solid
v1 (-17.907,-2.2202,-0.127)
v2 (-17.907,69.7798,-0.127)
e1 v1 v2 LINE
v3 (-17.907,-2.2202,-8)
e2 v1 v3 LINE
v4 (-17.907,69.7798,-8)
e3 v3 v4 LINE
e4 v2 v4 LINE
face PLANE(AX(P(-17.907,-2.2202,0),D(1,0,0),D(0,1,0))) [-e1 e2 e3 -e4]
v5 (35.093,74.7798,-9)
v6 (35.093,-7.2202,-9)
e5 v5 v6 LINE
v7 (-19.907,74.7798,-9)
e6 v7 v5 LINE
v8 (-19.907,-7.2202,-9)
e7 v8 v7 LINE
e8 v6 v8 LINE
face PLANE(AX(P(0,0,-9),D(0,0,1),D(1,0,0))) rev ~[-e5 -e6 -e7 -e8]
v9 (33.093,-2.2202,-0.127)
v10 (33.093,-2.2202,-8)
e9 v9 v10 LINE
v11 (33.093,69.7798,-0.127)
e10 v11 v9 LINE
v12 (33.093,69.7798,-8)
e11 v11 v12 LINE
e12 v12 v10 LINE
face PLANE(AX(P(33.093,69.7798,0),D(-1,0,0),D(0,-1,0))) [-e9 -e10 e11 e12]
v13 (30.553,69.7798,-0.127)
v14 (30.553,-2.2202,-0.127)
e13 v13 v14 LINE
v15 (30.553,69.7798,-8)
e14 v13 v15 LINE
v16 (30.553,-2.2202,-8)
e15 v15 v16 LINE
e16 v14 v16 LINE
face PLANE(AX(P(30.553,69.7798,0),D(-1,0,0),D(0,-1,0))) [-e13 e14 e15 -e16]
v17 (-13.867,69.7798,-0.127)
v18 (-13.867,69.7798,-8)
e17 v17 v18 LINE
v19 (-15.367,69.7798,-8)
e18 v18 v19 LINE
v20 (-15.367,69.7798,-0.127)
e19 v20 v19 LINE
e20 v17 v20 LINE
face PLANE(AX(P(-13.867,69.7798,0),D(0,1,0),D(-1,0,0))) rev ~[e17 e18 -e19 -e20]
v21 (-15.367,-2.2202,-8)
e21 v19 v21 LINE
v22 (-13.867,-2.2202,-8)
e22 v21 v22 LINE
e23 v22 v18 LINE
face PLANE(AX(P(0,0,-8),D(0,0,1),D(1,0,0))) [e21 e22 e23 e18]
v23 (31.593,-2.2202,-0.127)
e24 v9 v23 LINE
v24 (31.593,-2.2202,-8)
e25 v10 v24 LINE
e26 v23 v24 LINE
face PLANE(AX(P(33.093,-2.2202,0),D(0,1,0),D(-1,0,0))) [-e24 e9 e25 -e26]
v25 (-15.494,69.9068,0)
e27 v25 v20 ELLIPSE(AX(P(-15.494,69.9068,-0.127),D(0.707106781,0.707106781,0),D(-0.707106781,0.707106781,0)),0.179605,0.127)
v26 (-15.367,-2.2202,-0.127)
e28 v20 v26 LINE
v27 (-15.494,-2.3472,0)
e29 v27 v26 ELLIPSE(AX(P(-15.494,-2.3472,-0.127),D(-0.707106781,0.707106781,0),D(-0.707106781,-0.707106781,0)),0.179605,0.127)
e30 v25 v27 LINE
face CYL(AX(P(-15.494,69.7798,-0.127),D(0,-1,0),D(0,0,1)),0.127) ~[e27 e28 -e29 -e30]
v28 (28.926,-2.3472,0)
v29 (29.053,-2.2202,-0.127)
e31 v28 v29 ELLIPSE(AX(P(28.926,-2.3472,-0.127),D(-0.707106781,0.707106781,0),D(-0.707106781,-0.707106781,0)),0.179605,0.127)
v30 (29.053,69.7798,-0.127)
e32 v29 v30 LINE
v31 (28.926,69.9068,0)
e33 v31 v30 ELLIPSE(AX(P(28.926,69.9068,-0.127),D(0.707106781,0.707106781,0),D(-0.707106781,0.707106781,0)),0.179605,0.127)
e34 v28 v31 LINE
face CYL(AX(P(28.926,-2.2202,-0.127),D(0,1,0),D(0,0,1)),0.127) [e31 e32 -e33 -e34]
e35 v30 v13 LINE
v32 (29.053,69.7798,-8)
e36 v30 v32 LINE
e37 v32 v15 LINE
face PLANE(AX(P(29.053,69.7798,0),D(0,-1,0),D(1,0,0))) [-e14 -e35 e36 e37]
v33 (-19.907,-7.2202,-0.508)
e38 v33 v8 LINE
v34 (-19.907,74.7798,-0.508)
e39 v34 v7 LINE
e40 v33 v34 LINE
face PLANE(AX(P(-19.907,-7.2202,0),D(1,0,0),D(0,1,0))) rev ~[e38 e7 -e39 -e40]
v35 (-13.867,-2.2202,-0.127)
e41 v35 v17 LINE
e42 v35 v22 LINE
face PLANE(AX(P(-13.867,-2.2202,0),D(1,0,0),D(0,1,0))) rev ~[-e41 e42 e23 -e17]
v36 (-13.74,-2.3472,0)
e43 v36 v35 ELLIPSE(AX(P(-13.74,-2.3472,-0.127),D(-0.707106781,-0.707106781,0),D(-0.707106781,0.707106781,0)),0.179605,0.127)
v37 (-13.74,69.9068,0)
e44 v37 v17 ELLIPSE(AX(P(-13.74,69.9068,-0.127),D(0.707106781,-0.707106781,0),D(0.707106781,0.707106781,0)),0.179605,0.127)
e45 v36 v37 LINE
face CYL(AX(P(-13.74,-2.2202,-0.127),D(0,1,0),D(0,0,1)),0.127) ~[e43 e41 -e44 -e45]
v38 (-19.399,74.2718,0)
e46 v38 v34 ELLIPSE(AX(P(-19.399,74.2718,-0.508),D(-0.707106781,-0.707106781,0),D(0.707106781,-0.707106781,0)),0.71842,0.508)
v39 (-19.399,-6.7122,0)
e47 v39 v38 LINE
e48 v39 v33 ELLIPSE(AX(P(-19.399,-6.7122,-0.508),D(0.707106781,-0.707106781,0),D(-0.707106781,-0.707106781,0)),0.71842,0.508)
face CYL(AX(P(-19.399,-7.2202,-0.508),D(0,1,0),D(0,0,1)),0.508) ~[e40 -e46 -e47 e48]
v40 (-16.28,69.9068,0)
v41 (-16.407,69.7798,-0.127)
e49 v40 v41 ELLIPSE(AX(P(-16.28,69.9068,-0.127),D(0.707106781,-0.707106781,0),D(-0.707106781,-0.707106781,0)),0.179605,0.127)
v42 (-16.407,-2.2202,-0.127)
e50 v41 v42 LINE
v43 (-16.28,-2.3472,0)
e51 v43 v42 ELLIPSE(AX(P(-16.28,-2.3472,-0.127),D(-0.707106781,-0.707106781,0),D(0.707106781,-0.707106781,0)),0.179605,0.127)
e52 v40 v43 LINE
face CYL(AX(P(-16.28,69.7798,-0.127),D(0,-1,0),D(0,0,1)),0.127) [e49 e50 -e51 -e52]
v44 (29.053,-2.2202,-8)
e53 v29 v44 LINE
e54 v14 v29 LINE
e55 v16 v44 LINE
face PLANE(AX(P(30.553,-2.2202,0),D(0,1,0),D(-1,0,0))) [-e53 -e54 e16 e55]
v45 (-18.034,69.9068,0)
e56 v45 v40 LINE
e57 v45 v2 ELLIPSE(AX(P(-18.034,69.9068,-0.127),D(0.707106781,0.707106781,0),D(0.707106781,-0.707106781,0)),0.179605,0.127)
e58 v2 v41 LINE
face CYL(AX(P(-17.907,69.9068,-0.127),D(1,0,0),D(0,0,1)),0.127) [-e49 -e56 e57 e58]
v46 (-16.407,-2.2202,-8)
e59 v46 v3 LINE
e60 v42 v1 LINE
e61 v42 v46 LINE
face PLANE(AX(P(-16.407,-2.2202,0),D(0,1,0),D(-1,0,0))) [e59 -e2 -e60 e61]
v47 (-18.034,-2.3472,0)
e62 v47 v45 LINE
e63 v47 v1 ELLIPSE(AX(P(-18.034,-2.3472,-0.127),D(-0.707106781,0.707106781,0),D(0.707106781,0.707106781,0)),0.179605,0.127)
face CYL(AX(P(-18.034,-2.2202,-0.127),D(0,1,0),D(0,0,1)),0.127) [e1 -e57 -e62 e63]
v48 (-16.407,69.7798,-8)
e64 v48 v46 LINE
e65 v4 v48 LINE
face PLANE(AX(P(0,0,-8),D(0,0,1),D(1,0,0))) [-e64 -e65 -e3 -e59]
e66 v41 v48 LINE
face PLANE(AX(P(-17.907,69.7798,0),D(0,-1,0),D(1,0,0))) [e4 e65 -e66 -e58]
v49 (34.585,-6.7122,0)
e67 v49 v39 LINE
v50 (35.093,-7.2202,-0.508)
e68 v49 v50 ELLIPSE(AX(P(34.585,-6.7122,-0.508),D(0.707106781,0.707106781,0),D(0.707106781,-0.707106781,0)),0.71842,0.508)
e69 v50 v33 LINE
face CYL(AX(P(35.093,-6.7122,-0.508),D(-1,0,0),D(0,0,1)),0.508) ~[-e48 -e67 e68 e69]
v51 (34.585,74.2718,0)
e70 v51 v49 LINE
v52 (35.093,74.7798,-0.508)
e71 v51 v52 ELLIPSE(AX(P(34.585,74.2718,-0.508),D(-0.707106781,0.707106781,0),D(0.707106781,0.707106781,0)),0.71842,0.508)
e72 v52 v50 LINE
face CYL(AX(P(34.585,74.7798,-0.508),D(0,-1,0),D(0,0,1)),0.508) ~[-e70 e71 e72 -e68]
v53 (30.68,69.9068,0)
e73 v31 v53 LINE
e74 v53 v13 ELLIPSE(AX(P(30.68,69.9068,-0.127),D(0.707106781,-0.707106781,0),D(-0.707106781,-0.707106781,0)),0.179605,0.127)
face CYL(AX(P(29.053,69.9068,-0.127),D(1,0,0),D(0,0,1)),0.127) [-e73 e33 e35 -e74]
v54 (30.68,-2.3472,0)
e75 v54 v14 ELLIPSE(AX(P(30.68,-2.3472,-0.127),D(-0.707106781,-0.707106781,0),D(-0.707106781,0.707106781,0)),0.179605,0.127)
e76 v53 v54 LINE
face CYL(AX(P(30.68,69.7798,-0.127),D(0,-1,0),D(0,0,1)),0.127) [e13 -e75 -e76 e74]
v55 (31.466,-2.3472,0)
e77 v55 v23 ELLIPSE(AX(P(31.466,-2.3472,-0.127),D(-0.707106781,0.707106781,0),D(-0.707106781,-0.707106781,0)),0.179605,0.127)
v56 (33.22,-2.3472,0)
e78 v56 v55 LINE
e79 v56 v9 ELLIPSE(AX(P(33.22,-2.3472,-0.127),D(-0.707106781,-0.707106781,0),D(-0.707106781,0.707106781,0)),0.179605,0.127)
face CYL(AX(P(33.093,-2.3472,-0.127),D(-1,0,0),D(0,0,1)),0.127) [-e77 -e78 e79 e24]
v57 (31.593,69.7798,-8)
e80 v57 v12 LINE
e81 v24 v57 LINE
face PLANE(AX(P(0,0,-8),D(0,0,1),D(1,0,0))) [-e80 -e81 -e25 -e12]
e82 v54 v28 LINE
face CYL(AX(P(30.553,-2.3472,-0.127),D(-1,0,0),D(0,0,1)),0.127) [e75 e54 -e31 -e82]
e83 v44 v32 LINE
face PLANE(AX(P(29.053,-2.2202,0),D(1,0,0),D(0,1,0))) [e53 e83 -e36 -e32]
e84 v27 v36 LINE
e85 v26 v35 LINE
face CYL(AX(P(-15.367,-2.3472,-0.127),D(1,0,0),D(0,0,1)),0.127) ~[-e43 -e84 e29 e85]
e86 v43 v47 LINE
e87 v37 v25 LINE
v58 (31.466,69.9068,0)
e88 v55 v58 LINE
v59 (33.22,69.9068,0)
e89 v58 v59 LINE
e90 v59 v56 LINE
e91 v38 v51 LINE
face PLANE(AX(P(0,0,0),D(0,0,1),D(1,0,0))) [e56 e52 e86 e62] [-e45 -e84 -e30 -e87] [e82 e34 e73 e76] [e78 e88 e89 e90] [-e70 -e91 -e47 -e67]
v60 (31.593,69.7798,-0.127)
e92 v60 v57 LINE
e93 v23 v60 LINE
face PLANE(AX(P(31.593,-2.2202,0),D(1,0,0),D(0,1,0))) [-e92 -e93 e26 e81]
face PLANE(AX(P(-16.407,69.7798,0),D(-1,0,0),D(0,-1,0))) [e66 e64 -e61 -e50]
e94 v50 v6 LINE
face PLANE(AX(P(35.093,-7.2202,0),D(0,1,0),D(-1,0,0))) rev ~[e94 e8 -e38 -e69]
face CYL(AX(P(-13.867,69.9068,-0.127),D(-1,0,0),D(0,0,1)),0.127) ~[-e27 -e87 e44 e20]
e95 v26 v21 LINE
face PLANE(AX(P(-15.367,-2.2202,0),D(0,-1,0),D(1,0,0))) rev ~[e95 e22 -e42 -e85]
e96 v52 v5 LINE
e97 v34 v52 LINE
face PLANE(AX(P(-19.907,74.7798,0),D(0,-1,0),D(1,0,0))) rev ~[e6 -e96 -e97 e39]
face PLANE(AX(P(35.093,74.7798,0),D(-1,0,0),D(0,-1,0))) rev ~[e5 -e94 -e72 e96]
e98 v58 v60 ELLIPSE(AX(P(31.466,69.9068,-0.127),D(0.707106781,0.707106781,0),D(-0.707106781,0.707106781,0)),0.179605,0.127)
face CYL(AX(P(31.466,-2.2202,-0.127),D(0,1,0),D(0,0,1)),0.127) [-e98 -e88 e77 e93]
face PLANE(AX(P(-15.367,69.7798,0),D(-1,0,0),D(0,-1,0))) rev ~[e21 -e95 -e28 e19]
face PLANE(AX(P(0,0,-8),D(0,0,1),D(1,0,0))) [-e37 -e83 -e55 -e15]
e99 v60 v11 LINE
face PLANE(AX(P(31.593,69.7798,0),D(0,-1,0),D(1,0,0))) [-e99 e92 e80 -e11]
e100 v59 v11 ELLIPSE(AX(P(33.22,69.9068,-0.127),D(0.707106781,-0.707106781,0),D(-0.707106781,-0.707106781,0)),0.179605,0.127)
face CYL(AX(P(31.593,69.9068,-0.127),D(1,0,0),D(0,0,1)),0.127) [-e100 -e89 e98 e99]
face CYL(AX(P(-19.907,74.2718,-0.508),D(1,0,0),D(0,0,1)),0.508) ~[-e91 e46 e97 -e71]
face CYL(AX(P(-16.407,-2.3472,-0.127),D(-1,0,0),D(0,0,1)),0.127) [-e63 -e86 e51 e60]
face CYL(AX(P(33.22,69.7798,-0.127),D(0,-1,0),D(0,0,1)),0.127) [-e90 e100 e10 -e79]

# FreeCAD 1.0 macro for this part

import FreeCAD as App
import Part
import Sketcher
from FreeCAD import Vector


def edges_at(feature, points):
    """Names of the edges that pass closest to the given points."""
    edges = feature.Shape.Edges
    near = lambda p: min(range(len(edges)), key=lambda i: edges[i].distToShape(Part.Vertex(*p))[0])
    return sorted({f"Edge{near(p) + 1}" for p in points})

doc = App.newDocument("Part")
body = doc.addObject("PartDesign::Body", "Body")

# Sketch on XY plane
sketch1 = doc.addObject("Sketcher::SketchObject", "Sketch")
body.addObject(sketch1)
sketch1.AttachmentSupport = (doc.XY_Plane, [""])
sketch1.MapMode = "FlatFace"
sketch1.addGeometry([
    Part.LineSegment(Vector(-20, -7, 0), Vector(35, -7, 0)),
    Part.LineSegment(Vector(35, -7, 0), Vector(35, 75, 0)),
    Part.LineSegment(Vector(35, 75, 0), Vector(-20, 75, 0)),
    Part.LineSegment(Vector(-20, 75, 0), Vector(-20, -7, 0)),
], False)
sketch1.addConstraint([
    Sketcher.Constraint("Coincident", 0, 2, 1, 1),
    Sketcher.Constraint("Coincident", 1, 2, 2, 1),
    Sketcher.Constraint("Coincident", 2, 2, 3, 1),
    Sketcher.Constraint("Coincident", 3, 2, 0, 1),
    Sketcher.Constraint("Horizontal", 0),
    Sketcher.Constraint("Vertical", 1),
    Sketcher.Constraint("Horizontal", 2),
    Sketcher.Constraint("Vertical", 3),
    Sketcher.Constraint("DistanceX", 0, 1, 0, 2, 55.0),
    Sketcher.Constraint("DistanceY", 1, 1, 1, 2, 82.0),
    Sketcher.Constraint("DistanceX", -1, 1, 0, 2, 35.093),
    Sketcher.Constraint("DistanceY", 0, 2, -1, 1, 7.2202),
])
pad1 = doc.addObject("PartDesign::Pad", "Pad")
body.addObject(pad1)
pad1.Profile = sketch1
pad1.Length = 9
pad1.Reversed = True

# Sketch on XY plane
sketch2 = doc.addObject("Sketcher::SketchObject", "Sketch001")
body.addObject(sketch2)
sketch2.AttachmentSupport = (doc.XY_Plane, [""])
sketch2.MapMode = "FlatFace"
sketch2.addGeometry([
    Part.LineSegment(Vector(-16.4, 69.8, 0), Vector(-17.9, 69.8, 0)),  # 0
    Part.LineSegment(Vector(-17.9, 69.8, 0), Vector(-17.9, -2.2, 0)),  # 1
    Part.LineSegment(Vector(-17.9, -2.2, 0), Vector(-16.4, -2.2, 0)),  # 2
    Part.LineSegment(Vector(-16.4, -2.2, 0), Vector(-16.4, 69.8, 0)),  # 3
    Part.LineSegment(Vector(-15.4, 69.8, 0), Vector(-15.4, -2.2, 0)),  # 4
    Part.LineSegment(Vector(-15.4, -2.2, 0), Vector(-13.9, -2.2, 0)),  # 5
    Part.LineSegment(Vector(-13.9, -2.2, 0), Vector(-13.9, 69.8, 0)),  # 6
    Part.LineSegment(Vector(-13.9, 69.8, 0), Vector(-15.4, 69.8, 0)),  # 7
    Part.LineSegment(Vector(33.1, 69.8, 0), Vector(31.6, 69.8, 0)),  # 8
    Part.LineSegment(Vector(31.6, 69.8, 0), Vector(31.6, -2.2, 0)),  # 9
    Part.LineSegment(Vector(31.6, -2.2, 0), Vector(33.1, -2.2, 0)),  # 10
    Part.LineSegment(Vector(33.1, -2.2, 0), Vector(33.1, 69.8, 0)),  # 11
    Part.LineSegment(Vector(29.1, -2.2, 0), Vector(30.6, -2.2, 0)),  # 12
    Part.LineSegment(Vector(30.6, -2.2, 0), Vector(30.6, 69.8, 0)),  # 13
    Part.LineSegment(Vector(30.6, 69.8, 0), Vector(29.1, 69.8, 0)),  # 14
    Part.LineSegment(Vector(29.1, 69.8, 0), Vector(29.1, -2.2, 0)),  # 15
], False)
sketch2.addConstraint([
    Sketcher.Constraint("Coincident", 0, 2, 1, 1),
    Sketcher.Constraint("Coincident", 1, 2, 2, 1),
    Sketcher.Constraint("Coincident", 2, 2, 3, 1),
    Sketcher.Constraint("Coincident", 3, 2, 0, 1),
    Sketcher.Constraint("Coincident", 4, 2, 5, 1),
    Sketcher.Constraint("Coincident", 5, 2, 6, 1),
    Sketcher.Constraint("Coincident", 6, 2, 7, 1),
    Sketcher.Constraint("Coincident", 7, 2, 4, 1),
    Sketcher.Constraint("Coincident", 8, 2, 9, 1),
    Sketcher.Constraint("Coincident", 9, 2, 10, 1),
    Sketcher.Constraint("Coincident", 10, 2, 11, 1),
    Sketcher.Constraint("Coincident", 11, 2, 8, 1),
    Sketcher.Constraint("Coincident", 12, 2, 13, 1),
    Sketcher.Constraint("Coincident", 13, 2, 14, 1),
    Sketcher.Constraint("Coincident", 14, 2, 15, 1),
    Sketcher.Constraint("Coincident", 15, 2, 12, 1),
    Sketcher.Constraint("Horizontal", 0),
    Sketcher.Constraint("Vertical", 1),
    Sketcher.Constraint("Horizontal", 2),
    Sketcher.Constraint("Vertical", 3),
    Sketcher.Constraint("Vertical", 4),
    Sketcher.Constraint("Horizontal", 5),
    Sketcher.Constraint("Vertical", 6),
    Sketcher.Constraint("Horizontal", 7),
    Sketcher.Constraint("Horizontal", 8),
    Sketcher.Constraint("Vertical", 9),
    Sketcher.Constraint("Horizontal", 10),
    Sketcher.Constraint("Vertical", 11),
    Sketcher.Constraint("Horizontal", 12),
    Sketcher.Constraint("Vertical", 13),
    Sketcher.Constraint("Horizontal", 14),
    Sketcher.Constraint("Vertical", 15),
    Sketcher.Constraint("Horizontal", 2, 2, 4, 2),
    Sketcher.Constraint("Horizontal", 3, 2, 6, 2),
    Sketcher.Constraint("Horizontal", 7, 2, 8, 2),
    Sketcher.Constraint("Horizontal", 5, 2, 9, 2),
    Sketcher.Constraint("Horizontal", 10, 2, 12, 2),
    Sketcher.Constraint("Horizontal", 11, 2, 13, 2),
    Sketcher.Constraint("Equal", 2, 5),
    Sketcher.Constraint("Equal", 7, 8),
    Sketcher.Constraint("Equal", 10, 12),
    Sketcher.Constraint("DistanceX", 0, 2, 0, 1, 1.5),
    Sketcher.Constraint("DistanceY", 1, 2, 1, 1, 72.0),
    Sketcher.Constraint("DistanceX", 1, 2, 4, 2, 2.54),
    Sketcher.Constraint("DistanceX", 12, 2, 10, 2, 2.54),
    Sketcher.Constraint("DistanceX", 3, 2, 8, 2, 48.0),
    Sketcher.Constraint("DistanceX", 0, 2, -1, 1, 17.907),
    Sketcher.Constraint("DistanceY", -1, 1, 0, 2, 69.7798),
])
pocket1 = doc.addObject("PartDesign::Pocket", "Pocket")
body.addObject(pocket1)
pocket1.Profile = sketch2
pocket1.Length = 8
doc.recompute()

fillet = doc.addObject("PartDesign::Fillet", "Fillet")
body.addObject(fillet)
fillet.Base = (pocket1, edges_at(pocket1, [
    (-13.867, 33.78, 0),
    (-14.617, 69.78, 0),
    (-15.367, 33.78, 0),
    (-16.407, 33.78, 0),
    (-17.157, 69.78, 0),
    (-17.907, 33.78, 0),
    (-14.617, -2.22, 0),
    (-17.157, -2.22, 0),
    (29.803, -2.22, 0),
    (32.343, -2.22, 0),
    (33.093, 33.78, 0),
    (31.593, 33.78, 0),
    (30.553, 33.78, 0),
    (29.053, 33.78, 0),
    (32.343, 69.78, 0),
    (29.803, 69.78, 0),
]))
fillet.Radius = 0.127
doc.recompute()

fillet2 = doc.addObject("PartDesign::Fillet", "Fillet001")
body.addObject(fillet2)
fillet2.Base = (fillet, edges_at(fillet, [
    (7.593, 74.78, 0),
    (35.093, 33.78, 0),
    (7.593, -7.22, 0),
    (-19.907, 33.78, 0),
]))
fillet2.Radius = 0.508

doc.recompute()
